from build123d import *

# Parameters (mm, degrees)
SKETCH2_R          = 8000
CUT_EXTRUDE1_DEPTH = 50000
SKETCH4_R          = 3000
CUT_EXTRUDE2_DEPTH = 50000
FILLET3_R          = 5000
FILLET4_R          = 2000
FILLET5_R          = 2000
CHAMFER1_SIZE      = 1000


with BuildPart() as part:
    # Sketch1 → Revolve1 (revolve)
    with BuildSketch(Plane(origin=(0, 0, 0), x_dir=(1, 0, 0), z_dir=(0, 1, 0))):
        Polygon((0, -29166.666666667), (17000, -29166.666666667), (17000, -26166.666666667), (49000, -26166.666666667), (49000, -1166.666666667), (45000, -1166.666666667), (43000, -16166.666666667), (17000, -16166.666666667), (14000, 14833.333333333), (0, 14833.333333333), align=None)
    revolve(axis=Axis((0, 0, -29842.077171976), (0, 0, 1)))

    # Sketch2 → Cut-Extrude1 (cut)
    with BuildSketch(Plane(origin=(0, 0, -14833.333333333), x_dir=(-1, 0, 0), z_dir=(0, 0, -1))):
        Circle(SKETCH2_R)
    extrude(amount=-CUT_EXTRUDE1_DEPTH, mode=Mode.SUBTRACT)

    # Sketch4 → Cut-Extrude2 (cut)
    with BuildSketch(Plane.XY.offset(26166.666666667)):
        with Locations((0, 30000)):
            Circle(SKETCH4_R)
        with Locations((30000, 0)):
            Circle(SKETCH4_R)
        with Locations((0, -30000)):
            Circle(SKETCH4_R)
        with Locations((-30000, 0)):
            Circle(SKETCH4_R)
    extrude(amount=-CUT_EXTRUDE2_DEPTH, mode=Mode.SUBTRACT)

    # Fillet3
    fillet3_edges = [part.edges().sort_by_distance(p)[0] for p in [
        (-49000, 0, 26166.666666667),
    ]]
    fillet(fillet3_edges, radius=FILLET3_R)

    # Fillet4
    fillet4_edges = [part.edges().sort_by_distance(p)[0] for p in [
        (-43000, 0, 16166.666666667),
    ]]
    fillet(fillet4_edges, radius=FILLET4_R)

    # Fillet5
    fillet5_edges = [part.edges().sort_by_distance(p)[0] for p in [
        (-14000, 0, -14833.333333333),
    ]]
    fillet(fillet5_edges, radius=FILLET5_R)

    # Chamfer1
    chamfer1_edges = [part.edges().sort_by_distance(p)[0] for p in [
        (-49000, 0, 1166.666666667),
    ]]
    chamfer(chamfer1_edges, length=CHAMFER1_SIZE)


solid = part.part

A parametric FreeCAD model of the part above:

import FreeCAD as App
import Part
import Sketcher


def edges_at(feature, points):
    """Names of the edges that pass closest to the given points."""
    edges = feature.Shape.Edges
    near = lambda p: min(range(len(edges)), key=lambda i: edges[i].distToShape(Part.Vertex(*p))[0])
    return sorted({f"Edge{near(p) + 1}" for p in points})

doc = App.newDocument("Part")
body = doc.addObject("PartDesign::Body", "Body")

# Sketch on XZ plane
sketch1 = body.newObject("Sketcher::SketchObject", "Sketch")
sketch1.AttachmentSupport = (doc.getObject("XZ_Plane"), [""])
sketch1.MapMode = "FlatFace"
sketch1.addGeometry([
    Part.LineSegment(App.Vector(0, 29167, 0), App.Vector(17000, 29167, 0)),  # 0
    Part.LineSegment(App.Vector(17000, 29167, 0), App.Vector(17000, 26167, 0)),  # 1
    Part.LineSegment(App.Vector(17000, 26167, 0), App.Vector(49000, 26167, 0)),  # 2
    Part.LineSegment(App.Vector(49000, 26167, 0), App.Vector(49000, 1167, 0)),  # 3
    Part.LineSegment(App.Vector(49000, 1167, 0), App.Vector(45000, 1167, 0)),  # 4
    Part.LineSegment(App.Vector(45000, 1167, 0), App.Vector(43000, 16167, 0)),  # 5
    Part.LineSegment(App.Vector(43000, 16167, 0), App.Vector(17000, 16167, 0)),  # 6
    Part.LineSegment(App.Vector(17000, 16167, 0), App.Vector(14000, -14833, 0)),  # 7
    Part.LineSegment(App.Vector(14000, -14833, 0), App.Vector(0, -14833, 0)),  # 8
    Part.LineSegment(App.Vector(0, -14833, 0), App.Vector(0, 29167, 0)),  # 9
], False)
sketch1.addConstraint([
    Sketcher.Constraint("Coincident", 0, 2, 1, 1),
    Sketcher.Constraint("Coincident", 1, 2, 2, 1),
    Sketcher.Constraint("Coincident", 2, 2, 3, 1),
    Sketcher.Constraint("Coincident", 3, 2, 4, 1),
    Sketcher.Constraint("Coincident", 4, 2, 5, 1),
    Sketcher.Constraint("Coincident", 5, 2, 6, 1),
    Sketcher.Constraint("Coincident", 6, 2, 7, 1),
    Sketcher.Constraint("Coincident", 7, 2, 8, 1),
    Sketcher.Constraint("Coincident", 8, 2, 9, 1),
    Sketcher.Constraint("Coincident", 9, 2, 0, 1),
    Sketcher.Constraint("Horizontal", 0),
    Sketcher.Constraint("Vertical", 1),
    Sketcher.Constraint("Horizontal", 2),
    Sketcher.Constraint("Vertical", 3),
    Sketcher.Constraint("Horizontal", 4),
    Sketcher.Constraint("Horizontal", 6),
    Sketcher.Constraint("Horizontal", 8),
    Sketcher.Constraint("Vertical", 9),
    Sketcher.Constraint("PointOnObject", 8, 2, -2),
    Sketcher.Constraint("Vertical", 1, 2, 6, 2),
    Sketcher.Constraint("DistanceX", 0, 1, 0, 2, 17000.0),
    Sketcher.Constraint("DistanceX", 2, 1, 2, 2, 32000.0),
    Sketcher.Constraint("DistanceX", 4, 2, 4, 1, 4000.0),
    Sketcher.Constraint("DistanceX", 6, 2, 6, 1, 26000.0),
    Sketcher.Constraint("DistanceX", 8, 2, 8, 1, 14000.0),
    Sketcher.Constraint("DistanceY", 1, 2, 1, 1, 3000.0),
    Sketcher.Constraint("DistanceY", 3, 2, 3, 1, 25000.0),
    Sketcher.Constraint("DistanceY", 9, 1, 9, 2, 44000.0),
    Sketcher.Constraint("DistanceY", 5, 2, 2, 2, 10000.0),
    Sketcher.Constraint("DistanceY", -1, 1, 0, 2, 29166.666667),
])
revolution = body.newObject("PartDesign::Revolution", "Revolution")
revolution.Profile = sketch1
revolution.ReferenceAxis = (sketch1, ["V_Axis"])
revolution.Angle = 360

# Sketch on XY plane
sketch2 = body.newObject("Sketcher::SketchObject", "Sketch001")
sketch2.AttachmentSupport = (doc.getObject("XY_Plane"), [""])
sketch2.MapMode = "FlatFace"
sketch2.AttachmentOffset = App.Placement(App.Vector(0, 0, -14833.333333), App.Rotation())
sketch2.addGeometry(Part.Circle(App.Vector(0, 0, 0), App.Vector(0, 0, 1), 8000), False)
sketch2.addConstraint([
    Sketcher.Constraint("Coincident", 0, 3, -1, 1),
    Sketcher.Constraint("Diameter", 0, 16000.0),
])
pocket1 = body.newObject("PartDesign::Pocket", "Pocket")
pocket1.Profile = sketch2
pocket1.Length = 50000
pocket1.Reversed = True

# Sketch on XY plane
sketch3 = body.newObject("Sketcher::SketchObject", "Sketch002")
sketch3.AttachmentSupport = (doc.getObject("XY_Plane"), [""])
sketch3.MapMode = "FlatFace"
sketch3.AttachmentOffset = App.Placement(App.Vector(0, 0, 26166.666667), App.Rotation())
sketch3.addGeometry([
    Part.Circle(App.Vector(0, 30000, 0), App.Vector(0, 0, 1), 3000),
    Part.Circle(App.Vector(30000, 0, 0), App.Vector(0, 0, 1), 3000),
    Part.Circle(App.Vector(0, -30000, 0), App.Vector(0, 0, 1), 3000),
    Part.Circle(App.Vector(-30000, 0, 0), App.Vector(0, 0, 1), 3000),
], False)
sketch3.addConstraint([
    Sketcher.Constraint("Equal", 0, 1),
    Sketcher.Constraint("Equal", 1, 2),
    Sketcher.Constraint("Equal", 2, 3),
    Sketcher.Constraint("Symmetric", 0, 3, 2, 3, -1, 1),
    Sketcher.Constraint("Symmetric", 1, 3, 3, 3, -1, 1),
    Sketcher.Constraint("PointOnObject", 0, 3, -2),
    Sketcher.Constraint("PointOnObject", 1, 3, -1),
    Sketcher.Constraint("Diameter", 0, 6000.0),
    Sketcher.Constraint("DistanceY", -1, 1, 0, 3, 30000.0),
    Sketcher.Constraint("DistanceX", -1, 1, 1, 3, 30000.0),
])
pocket2 = body.newObject("PartDesign::Pocket", "Pocket001")
pocket2.Profile = sketch3
pocket2.Length = 50000
doc.recompute()

fillet = body.newObject("PartDesign::Fillet", "Fillet")
fillet.Base = (pocket2, edges_at(pocket2, [(-49000, 0, 26166.667)]))
fillet.Radius = 5000
doc.recompute()

fillet2 = body.newObject("PartDesign::Fillet", "Fillet001")
fillet2.Base = (fillet, edges_at(fillet, [(-43000, 0, 16166.667)]))
fillet2.Radius = 2000
doc.recompute()

fillet3 = body.newObject("PartDesign::Fillet", "Fillet002")
fillet3.Base = (fillet2, edges_at(fillet2, [(-14000, 0, -14833.333)]))
fillet3.Radius = 2000
doc.recompute()

chamfer = body.newObject("PartDesign::Chamfer", "Chamfer")
chamfer.Base = (fillet3, edges_at(fillet3, [(-49000, 0, 1166.667)]))
chamfer.Size = 1000

doc.recompute()
